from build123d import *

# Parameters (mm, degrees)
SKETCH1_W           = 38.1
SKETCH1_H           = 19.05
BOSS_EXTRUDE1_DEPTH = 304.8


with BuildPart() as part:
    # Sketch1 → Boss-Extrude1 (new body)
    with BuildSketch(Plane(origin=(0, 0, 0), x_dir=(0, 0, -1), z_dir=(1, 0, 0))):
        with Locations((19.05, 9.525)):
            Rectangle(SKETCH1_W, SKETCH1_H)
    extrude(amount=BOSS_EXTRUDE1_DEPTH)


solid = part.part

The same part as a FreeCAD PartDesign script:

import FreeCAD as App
import Part
import Sketcher

V = App.Vector
Q = App.Units.Quantity


def add_polygon(sketch, points):
    """Adds a closed chain of lines whose ends are joined by coincident constraints."""
    first, n = sketch.GeometryCount, len(points)
    for a, b in zip(points, points[1:] + points[:1]):
        sketch.addGeometry(Part.LineSegment(App.Vector(*a, 0), App.Vector(*b, 0)), False)
    for i in range(n):
        sketch.addConstraint(Sketcher.Constraint("Coincident", first + i, 2, first + (i + 1) % n, 1))

doc = App.newDocument("Part")
body = doc.addObject("PartDesign::Body", "Body")

# Sketch on YZ plane
sketch1 = body.newObject("Sketcher::SketchObject", "Sketch")
sketch1.AttachmentSupport = (doc.getObject("YZ_Plane"), [""])
sketch1.MapMode = "FlatFace"
add_polygon(sketch1, [(19, 0), (0, 0), (0, -38), (19, -38)])  # lines 0-3
sketch1.addConstraint(Sketcher.Constraint("Horizontal", 0))
sketch1.addConstraint(Sketcher.Constraint("Vertical", 1))
sketch1.addConstraint(Sketcher.Constraint("Horizontal", 2))
sketch1.addConstraint(Sketcher.Constraint("Vertical", 3))
sketch1.addConstraint(Sketcher.Constraint("Coincident", 0, 2, -1, 1))
sketch1.addConstraint(Sketcher.Constraint("DistanceY", 1, 2, 1, 1, Q("1.5 in")))
sketch1.addConstraint(Sketcher.Constraint("DistanceX", 0, 2, 0, 1, Q("0.75 in")))
pad1 = body.newObject("PartDesign::Pad", "Pad")
pad1.Profile = sketch1
pad1.Length = Q("12 in")

doc.recompute()
